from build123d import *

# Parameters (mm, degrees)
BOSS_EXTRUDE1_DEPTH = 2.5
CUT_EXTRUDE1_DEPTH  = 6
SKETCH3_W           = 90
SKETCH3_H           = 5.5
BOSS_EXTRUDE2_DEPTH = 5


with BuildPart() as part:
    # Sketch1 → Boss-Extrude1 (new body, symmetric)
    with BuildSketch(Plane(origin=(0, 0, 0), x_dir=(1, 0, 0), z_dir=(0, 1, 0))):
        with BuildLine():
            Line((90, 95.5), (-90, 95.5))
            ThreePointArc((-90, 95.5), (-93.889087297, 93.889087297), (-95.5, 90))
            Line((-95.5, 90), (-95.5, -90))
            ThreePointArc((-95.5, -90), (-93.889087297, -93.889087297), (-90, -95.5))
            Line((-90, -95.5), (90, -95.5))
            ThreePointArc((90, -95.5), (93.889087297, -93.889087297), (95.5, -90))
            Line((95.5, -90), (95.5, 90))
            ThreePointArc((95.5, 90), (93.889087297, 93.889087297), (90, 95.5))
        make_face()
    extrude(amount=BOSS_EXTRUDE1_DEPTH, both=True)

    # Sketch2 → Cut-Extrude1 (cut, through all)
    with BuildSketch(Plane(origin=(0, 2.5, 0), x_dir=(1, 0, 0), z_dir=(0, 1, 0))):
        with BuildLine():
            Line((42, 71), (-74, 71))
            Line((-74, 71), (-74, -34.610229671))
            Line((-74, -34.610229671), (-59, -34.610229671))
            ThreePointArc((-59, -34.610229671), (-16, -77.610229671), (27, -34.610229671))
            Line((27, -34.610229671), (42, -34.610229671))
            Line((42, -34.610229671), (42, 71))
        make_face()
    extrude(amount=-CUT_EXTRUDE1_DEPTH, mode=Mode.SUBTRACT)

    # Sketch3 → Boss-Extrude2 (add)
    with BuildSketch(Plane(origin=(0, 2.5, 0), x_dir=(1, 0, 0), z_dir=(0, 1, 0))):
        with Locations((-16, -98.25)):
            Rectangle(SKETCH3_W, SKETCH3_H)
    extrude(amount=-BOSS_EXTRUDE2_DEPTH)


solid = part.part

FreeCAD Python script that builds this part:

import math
import FreeCAD as App
import Part
import Sketcher

V = App.Vector
Q = App.Units.Quantity


def add_polygon(sketch, points):
    """Adds a closed chain of lines whose ends are joined by coincident constraints."""
    first, n = sketch.GeometryCount, len(points)
    for a, b in zip(points, points[1:] + points[:1]):
        sketch.addGeometry(Part.LineSegment(App.Vector(*a, 0), App.Vector(*b, 0)), False)
    for i in range(n):
        sketch.addConstraint(Sketcher.Constraint("Coincident", first + i, 2, first + (i + 1) % n, 1))

doc = App.newDocument("Part")
body = doc.addObject("PartDesign::Body", "Body")

# Sketch on XZ plane
sketch1 = body.newObject("Sketcher::SketchObject", "Sketch")
sketch1.AttachmentSupport = (doc.getObject("XZ_Plane"), [""])
sketch1.MapMode = "FlatFace"
sketch1.addGeometry([
    Part.LineSegment(V(90, -96, 0), V(-90, -96, 0)),  # 0
    Part.ArcOfCircle(Part.Circle(V(-90, -90, 0), V(0, 0, 1), 5), math.radians(180), math.radians(270)),  # 1
    Part.LineSegment(V(-96, -90, 0), V(-96, 90, 0)),  # 2
    Part.ArcOfCircle(Part.Circle(V(-90, 90, 0), V(0, 0, 1), 5), math.radians(90), math.radians(180)),  # 3
    Part.LineSegment(V(-90, 96, 0), V(90, 96, 0)),  # 4
    Part.ArcOfCircle(Part.Circle(V(90, 90, 0), V(0, 0, 1), 5), math.radians(0), math.radians(90)),  # 5
    Part.LineSegment(V(96, 90, 0), V(96, -90, 0)),  # 6
    Part.ArcOfCircle(Part.Circle(V(90, -90, 0), V(0, 0, 1), 5), math.radians(-90), math.radians(0)),  # 7
], False)
sketch1.addConstraint([
    Sketcher.Constraint("Tangent", 0, 2, 1, 2),
    Sketcher.Constraint("Tangent", 1, 1, 2, 1),
    Sketcher.Constraint("Tangent", 2, 2, 3, 2),
    Sketcher.Constraint("Tangent", 3, 1, 4, 1),
    Sketcher.Constraint("Tangent", 4, 2, 5, 2),
    Sketcher.Constraint("Tangent", 5, 1, 6, 1),
    Sketcher.Constraint("Tangent", 6, 2, 7, 2),
    Sketcher.Constraint("Tangent", 7, 1, 0, 1),
    Sketcher.Constraint("Horizontal", 0),
    Sketcher.Constraint("Vertical", 2),
    Sketcher.Constraint("Horizontal", 4),
    Sketcher.Constraint("Vertical", 6),
    Sketcher.Constraint("Equal", 1, 3),
    Sketcher.Constraint("Equal", 3, 5),
    Sketcher.Constraint("Equal", 5, 7),
    Sketcher.Constraint("Symmetric", 1, 3, 5, 3, -1, 1),
    Sketcher.Constraint("Equal", 4, 2),
    Sketcher.Constraint("Radius", 1, Q("5.5 mm")),
    Sketcher.Constraint("DistanceX", 0, 2, 0, 1, Q("180 mm")),
])
pad1 = body.newObject("PartDesign::Pad", "Pad")
pad1.Profile = sketch1
pad1.Length = 5
pad1.Midplane = True

# Sketch on XZ plane
sketch2 = body.newObject("Sketcher::SketchObject", "Sketch001")
sketch2.AttachmentSupport = (doc.getObject("XZ_Plane"), [""])
sketch2.MapMode = "FlatFace"
sketch2.AttachmentOffset = App.Placement(V(0, 0, -2.5), App.Rotation())
sketch2.addGeometry([
    Part.LineSegment(V(42, -71, 0), V(-74, -71, 0)),  # 0
    Part.LineSegment(V(-74, -71, 0), V(-74, 35, 0)),  # 1
    Part.LineSegment(V(-74, 35, 0), V(-59, 35, 0)),  # 2
    Part.ArcOfCircle(Part.Circle(V(-16, 35, 0), V(0, 0, 1), 43), math.radians(0), math.radians(180)),  # 3
    Part.LineSegment(V(27, 35, 0), V(42, 35, 0)),  # 4
    Part.LineSegment(V(42, 35, 0), V(42, -71, 0)),  # 5
], False)
sketch2.addConstraint([
    Sketcher.Constraint("Coincident", 0, 2, 1, 1),
    Sketcher.Constraint("Coincident", 1, 2, 2, 1),
    Sketcher.Constraint("Coincident", 2, 2, 3, 2),
    Sketcher.Constraint("Coincident", 3, 1, 4, 1),
    Sketcher.Constraint("Coincident", 4, 2, 5, 1),
    Sketcher.Constraint("Coincident", 5, 2, 0, 1),
    Sketcher.Constraint("Horizontal", 0),
    Sketcher.Constraint("Vertical", 1),
    Sketcher.Constraint("Horizontal", 2),
    Sketcher.Constraint("Horizontal", 4),
    Sketcher.Constraint("Vertical", 5),
    Sketcher.Constraint("Horizontal", 3, 3, 1, 2),
    Sketcher.Constraint("Horizontal", 2, 2, 3, 1),
    Sketcher.Constraint("Equal", 2, 4),
    Sketcher.Constraint("Radius", 3, Q("43 mm")),
    Sketcher.Constraint("DistanceX", 0, 2, 0, 1, Q("116 mm")),
    Sketcher.Constraint("DistanceX", 3, 3, -1, 1, Q("16 mm")),
    Sketcher.Constraint("DistanceY", 0, 2, -1, 1, Q("71 mm")),
    Sketcher.Constraint("DistanceY", 1, 1, 1, 2, Q("105.61023 mm")),
])
pocket1 = body.newObject("PartDesign::Pocket", "Pocket")
pocket1.Profile = sketch2
pocket1.Type = "ThroughAll"
pocket1.Reversed = True

# Sketch on XZ plane
sketch3 = body.newObject("Sketcher::SketchObject", "Sketch002")
sketch3.AttachmentSupport = (doc.getObject("XZ_Plane"), [""])
sketch3.MapMode = "FlatFace"
sketch3.AttachmentOffset = App.Placement(V(0, 0, -2.5), App.Rotation())
add_polygon(sketch3, [(-61, 96), (-61, 101), (29, 101), (29, 96)])  # lines 0-3
sketch3.addConstraint([
    Sketcher.Constraint("Vertical", 0),
    Sketcher.Constraint("Horizontal", 1),
    Sketcher.Constraint("Vertical", 2),
    Sketcher.Constraint("Horizontal", 3),
    Sketcher.Constraint("DistanceX", 1, 1, 1, 2, Q("90 mm")),
    Sketcher.Constraint("DistanceY", 0, 1, 0, 2, Q("5.5 mm")),
    Sketcher.Constraint("DistanceX", 0, 2, -1, 1, Q("61 mm")),
    Sketcher.Constraint("DistanceY", -1, 1, 0, 2, Q("101 mm")),
])
pad2 = body.newObject("PartDesign::Pad", "Pad001")
pad2.Profile = sketch3
pad2.Length = 5

doc.recompute()
